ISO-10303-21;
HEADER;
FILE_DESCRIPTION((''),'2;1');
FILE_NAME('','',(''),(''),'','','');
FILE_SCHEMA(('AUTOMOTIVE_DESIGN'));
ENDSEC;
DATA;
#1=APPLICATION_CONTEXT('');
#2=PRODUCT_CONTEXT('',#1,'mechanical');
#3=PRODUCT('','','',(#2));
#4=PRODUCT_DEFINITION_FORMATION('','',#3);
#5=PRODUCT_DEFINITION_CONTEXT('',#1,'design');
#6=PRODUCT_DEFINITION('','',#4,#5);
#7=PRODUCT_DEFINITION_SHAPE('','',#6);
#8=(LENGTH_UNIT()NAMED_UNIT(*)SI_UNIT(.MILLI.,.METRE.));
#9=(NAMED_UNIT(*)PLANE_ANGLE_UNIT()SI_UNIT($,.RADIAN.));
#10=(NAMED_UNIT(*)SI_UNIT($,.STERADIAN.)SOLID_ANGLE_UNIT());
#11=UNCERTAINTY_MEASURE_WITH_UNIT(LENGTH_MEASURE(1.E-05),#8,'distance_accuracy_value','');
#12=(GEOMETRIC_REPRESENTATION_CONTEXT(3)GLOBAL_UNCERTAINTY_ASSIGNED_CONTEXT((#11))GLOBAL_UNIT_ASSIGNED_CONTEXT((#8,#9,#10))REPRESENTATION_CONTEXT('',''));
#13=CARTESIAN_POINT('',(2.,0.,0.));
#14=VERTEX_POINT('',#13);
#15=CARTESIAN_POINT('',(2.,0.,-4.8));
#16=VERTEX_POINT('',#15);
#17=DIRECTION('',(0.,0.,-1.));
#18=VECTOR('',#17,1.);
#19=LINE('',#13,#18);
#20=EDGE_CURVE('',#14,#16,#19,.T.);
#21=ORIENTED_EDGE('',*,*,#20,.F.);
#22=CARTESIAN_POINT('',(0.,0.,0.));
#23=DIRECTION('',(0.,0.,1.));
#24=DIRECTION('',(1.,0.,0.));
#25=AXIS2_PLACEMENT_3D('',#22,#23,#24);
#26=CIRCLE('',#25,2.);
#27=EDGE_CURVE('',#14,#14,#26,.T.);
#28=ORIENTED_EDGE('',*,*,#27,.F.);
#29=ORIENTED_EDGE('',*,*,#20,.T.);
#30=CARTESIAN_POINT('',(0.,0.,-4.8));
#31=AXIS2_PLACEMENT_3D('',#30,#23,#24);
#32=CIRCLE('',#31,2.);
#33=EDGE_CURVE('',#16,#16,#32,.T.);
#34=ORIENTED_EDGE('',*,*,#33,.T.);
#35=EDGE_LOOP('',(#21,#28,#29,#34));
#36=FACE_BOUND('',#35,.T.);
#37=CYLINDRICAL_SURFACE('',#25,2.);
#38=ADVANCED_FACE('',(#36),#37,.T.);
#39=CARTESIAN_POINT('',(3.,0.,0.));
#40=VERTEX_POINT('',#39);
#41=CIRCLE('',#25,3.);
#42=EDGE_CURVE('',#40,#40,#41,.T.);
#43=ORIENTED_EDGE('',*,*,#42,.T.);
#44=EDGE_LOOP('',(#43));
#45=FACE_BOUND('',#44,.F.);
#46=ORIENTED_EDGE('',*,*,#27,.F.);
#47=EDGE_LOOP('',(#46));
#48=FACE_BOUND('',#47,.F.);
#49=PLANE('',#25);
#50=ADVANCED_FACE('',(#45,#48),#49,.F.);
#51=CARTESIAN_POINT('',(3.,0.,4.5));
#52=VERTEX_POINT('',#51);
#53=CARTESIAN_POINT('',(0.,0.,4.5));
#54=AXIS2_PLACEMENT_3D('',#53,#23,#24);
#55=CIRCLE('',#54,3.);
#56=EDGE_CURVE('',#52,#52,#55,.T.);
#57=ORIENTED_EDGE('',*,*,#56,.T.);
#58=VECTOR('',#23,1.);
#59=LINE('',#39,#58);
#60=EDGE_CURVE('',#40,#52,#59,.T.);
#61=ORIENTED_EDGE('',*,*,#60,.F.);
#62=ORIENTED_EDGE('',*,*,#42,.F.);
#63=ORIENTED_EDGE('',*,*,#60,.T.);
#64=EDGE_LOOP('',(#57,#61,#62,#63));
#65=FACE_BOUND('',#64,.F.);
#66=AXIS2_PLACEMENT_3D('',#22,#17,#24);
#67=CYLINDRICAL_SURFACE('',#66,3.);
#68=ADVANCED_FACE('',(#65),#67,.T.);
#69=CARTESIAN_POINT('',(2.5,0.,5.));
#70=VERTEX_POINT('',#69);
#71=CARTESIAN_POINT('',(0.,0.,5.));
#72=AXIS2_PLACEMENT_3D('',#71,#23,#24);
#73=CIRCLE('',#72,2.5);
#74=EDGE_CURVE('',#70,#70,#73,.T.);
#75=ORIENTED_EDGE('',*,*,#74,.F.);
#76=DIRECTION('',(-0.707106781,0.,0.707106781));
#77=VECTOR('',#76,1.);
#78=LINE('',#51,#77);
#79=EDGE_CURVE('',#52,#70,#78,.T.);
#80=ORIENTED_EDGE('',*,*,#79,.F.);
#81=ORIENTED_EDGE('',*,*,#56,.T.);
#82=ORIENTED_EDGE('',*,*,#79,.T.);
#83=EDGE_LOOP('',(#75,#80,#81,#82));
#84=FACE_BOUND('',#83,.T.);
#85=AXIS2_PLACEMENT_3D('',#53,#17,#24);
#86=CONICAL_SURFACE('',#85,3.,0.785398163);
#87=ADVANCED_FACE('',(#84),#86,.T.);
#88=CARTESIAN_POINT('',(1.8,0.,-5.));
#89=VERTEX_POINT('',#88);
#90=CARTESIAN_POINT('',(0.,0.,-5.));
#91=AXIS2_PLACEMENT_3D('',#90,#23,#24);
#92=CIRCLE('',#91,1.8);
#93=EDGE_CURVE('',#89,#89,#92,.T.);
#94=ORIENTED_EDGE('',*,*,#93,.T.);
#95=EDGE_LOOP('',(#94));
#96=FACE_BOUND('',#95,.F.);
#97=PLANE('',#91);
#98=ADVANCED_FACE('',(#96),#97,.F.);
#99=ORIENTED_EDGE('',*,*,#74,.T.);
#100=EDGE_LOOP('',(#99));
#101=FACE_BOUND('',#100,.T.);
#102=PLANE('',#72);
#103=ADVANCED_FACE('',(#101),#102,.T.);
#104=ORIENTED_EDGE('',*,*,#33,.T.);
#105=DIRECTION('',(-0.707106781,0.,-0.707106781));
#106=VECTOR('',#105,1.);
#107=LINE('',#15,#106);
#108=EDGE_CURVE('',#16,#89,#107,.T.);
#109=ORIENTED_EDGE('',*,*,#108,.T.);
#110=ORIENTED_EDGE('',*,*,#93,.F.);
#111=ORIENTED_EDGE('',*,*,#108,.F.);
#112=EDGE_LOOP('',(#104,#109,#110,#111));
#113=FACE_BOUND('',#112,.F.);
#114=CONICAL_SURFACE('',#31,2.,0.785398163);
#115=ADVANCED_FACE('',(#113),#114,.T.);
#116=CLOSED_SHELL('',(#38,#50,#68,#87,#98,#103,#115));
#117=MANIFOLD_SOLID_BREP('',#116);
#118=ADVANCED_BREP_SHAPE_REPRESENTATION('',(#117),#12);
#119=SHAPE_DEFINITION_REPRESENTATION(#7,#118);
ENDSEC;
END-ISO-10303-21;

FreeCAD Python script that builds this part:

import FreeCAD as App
import Part
import Sketcher
from FreeCAD import Vector
Q = App.Units.Quantity


def edges_at(feature, points):
    """Names of the edges that pass closest to the given points."""
    edges = feature.Shape.Edges
    near = lambda p: min(range(len(edges)), key=lambda i: edges[i].distToShape(Part.Vertex(*p))[0])
    return sorted({f"Edge{near(p) + 1}" for p in points})

doc = App.newDocument("Part")
body = doc.addObject("PartDesign::Body", "Body")

sketch1 = body.newObject("Sketcher::SketchObject", "Sketch")
sketch1.AttachmentSupport = (doc.getObject("XY_Plane"), [""])
sketch1.MapMode = "FlatFace"
sketch1.addGeometry(Part.Circle(Vector(0, 0, 0), Vector(0, 0, 1), 3), False)
sketch1.addConstraint(Sketcher.Constraint("Coincident", 0, 3, -1, 1))
sketch1.addConstraint(Sketcher.Constraint("Diameter", 0, Q("6 mm")))
pad1 = body.newObject("PartDesign::Pad", "Pad")
pad1.Profile = sketch1
pad1.Length = 5

sketch2 = body.newObject("Sketcher::SketchObject", "Sketch001")
sketch2.AttachmentSupport = (doc.getObject("XY_Plane"), [""])
sketch2.MapMode = "FlatFace"
sketch2.addGeometry(Part.Circle(Vector(0, 0, 0), Vector(0, 0, 1), 2), False)
sketch2.addConstraint(Sketcher.Constraint("Coincident", 0, 3, -1, 1))
sketch2.addConstraint(Sketcher.Constraint("Diameter", 0, Q("4 mm")))
pad2 = body.newObject("PartDesign::Pad", "Pad001")
pad2.Profile = sketch2
pad2.Length = 5
pad2.Reversed = True
doc.recompute()

chamfer = body.newObject("PartDesign::Chamfer", "Chamfer")
chamfer.Base = (pad2, edges_at(pad2, [(-3, 0, 5)]))
chamfer.Size = 0.5
doc.recompute()

chamfer2 = body.newObject("PartDesign::Chamfer", "Chamfer001")
chamfer2.Base = (chamfer, edges_at(chamfer, [(-2, 0, -5)]))
chamfer2.Size = 0.2

doc.recompute()
